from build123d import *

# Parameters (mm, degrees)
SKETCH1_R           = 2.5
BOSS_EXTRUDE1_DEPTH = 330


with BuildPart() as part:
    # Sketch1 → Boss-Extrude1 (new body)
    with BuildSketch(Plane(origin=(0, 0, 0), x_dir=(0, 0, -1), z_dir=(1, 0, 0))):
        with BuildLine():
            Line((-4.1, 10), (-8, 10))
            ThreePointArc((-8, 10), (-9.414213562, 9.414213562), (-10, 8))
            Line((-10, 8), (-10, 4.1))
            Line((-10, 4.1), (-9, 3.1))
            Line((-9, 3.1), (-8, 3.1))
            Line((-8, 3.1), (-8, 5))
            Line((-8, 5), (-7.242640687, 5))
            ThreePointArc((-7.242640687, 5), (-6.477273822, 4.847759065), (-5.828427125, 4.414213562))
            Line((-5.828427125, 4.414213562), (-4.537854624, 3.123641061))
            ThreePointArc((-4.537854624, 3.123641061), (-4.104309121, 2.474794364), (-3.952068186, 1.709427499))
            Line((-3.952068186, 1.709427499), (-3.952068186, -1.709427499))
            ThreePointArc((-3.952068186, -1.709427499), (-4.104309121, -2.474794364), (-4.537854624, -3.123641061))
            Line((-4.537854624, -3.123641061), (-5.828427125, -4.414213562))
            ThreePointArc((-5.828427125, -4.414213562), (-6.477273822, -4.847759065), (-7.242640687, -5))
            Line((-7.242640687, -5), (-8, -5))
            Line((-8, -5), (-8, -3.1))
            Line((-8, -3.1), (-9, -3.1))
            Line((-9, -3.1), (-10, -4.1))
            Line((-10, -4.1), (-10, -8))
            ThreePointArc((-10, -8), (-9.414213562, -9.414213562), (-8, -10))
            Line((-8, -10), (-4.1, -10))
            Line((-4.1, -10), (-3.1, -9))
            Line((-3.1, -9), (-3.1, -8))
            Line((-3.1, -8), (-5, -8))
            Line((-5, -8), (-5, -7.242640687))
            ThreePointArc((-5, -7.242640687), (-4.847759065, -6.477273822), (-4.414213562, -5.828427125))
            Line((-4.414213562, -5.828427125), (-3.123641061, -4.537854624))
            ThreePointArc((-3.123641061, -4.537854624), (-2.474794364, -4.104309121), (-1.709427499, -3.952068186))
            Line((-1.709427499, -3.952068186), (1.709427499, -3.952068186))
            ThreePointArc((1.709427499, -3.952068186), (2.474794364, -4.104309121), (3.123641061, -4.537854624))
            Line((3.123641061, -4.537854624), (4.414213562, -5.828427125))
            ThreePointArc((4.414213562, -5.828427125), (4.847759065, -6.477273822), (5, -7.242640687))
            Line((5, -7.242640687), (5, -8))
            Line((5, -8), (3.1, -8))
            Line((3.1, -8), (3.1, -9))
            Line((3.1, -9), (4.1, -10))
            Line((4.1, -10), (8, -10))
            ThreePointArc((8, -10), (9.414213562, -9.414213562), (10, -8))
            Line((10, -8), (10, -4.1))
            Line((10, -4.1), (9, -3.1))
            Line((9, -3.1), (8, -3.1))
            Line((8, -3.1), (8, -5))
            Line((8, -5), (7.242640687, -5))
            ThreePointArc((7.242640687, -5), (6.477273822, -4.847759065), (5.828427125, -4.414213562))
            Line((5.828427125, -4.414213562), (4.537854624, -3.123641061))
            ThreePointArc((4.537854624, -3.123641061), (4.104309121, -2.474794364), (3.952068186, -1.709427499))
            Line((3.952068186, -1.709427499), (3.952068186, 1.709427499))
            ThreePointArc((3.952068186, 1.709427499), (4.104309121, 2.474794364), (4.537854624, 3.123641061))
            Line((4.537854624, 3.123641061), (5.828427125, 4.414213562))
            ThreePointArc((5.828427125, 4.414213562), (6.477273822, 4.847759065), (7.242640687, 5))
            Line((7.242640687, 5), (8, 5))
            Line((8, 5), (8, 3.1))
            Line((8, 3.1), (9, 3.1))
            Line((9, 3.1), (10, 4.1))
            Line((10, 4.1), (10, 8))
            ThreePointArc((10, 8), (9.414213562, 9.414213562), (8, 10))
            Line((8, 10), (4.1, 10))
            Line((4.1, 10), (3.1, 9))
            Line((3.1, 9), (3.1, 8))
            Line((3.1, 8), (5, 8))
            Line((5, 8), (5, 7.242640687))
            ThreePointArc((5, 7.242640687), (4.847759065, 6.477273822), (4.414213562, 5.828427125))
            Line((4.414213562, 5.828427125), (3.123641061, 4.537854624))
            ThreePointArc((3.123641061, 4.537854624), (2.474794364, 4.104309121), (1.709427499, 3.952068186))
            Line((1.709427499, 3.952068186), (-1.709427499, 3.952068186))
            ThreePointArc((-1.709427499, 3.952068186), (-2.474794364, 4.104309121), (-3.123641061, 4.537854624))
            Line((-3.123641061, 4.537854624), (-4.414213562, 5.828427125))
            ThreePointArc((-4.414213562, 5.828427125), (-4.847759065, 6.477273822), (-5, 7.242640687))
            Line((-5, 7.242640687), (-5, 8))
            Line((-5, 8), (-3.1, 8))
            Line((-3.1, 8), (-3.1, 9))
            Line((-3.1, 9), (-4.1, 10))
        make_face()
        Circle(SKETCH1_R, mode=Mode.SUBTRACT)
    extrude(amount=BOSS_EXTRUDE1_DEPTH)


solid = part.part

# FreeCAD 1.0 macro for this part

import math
import FreeCAD as App
import Part
import Sketcher

V = App.Vector
Q = App.Units.Quantity

doc = App.newDocument("Part")
params = doc.addObject("Spreadsheet::Sheet", "Params")
for row, (alias, value) in enumerate([
    ("sketch1_diameter", "5 mm"),
    ("sketch1_radius", "2 mm"),
    ("sketch1_width", "1 mm"),
    ("sketch1_width2", "3.9 mm"),
    ("sketch1_width3", "1.9 mm"),
    ("pad1_length", "330 mm"),
], start=1):
    params.set(f"A{row}", alias)
    params.set(f"B{row}", "=" + value)
    params.setAlias(f"B{row}", alias)

body = doc.addObject("PartDesign::Body", "Body")

# Sketch on YZ plane
sketch1 = body.newObject("Sketcher::SketchObject", "Sketch")
sketch1.AttachmentSupport = (doc.getObject("YZ_Plane"), [""])
sketch1.MapMode = "FlatFace"
sketch1.addGeometry([
    Part.LineSegment(V(10, 4.1, 0), V(10, 8, 0)),  # 0
    Part.ArcOfCircle(Part.Circle(V(8, 8, 0), V(0, 0, 1), 2), math.radians(0), math.radians(90)),  # 1
    Part.LineSegment(V(8, 10, 0), V(4.1, 10, 0)),  # 2
    Part.LineSegment(V(4.1, 10, 0), V(3.1, 9, 0)),  # 3
    Part.LineSegment(V(3.1, 9, 0), V(3.1, 8, 0)),  # 4
    Part.LineSegment(V(3.1, 8, 0), V(5, 8, 0)),  # 5
    Part.LineSegment(V(5, 8, 0), V(5, 7.242641, 0)),  # 6
    Part.ArcOfCircle(Part.Circle(V(3, 7.242641, 0), V(0, 0, 1), 2), math.radians(-45), math.radians(0)),  # 7
    Part.LineSegment(V(4.414214, 5.828427, 0), V(3.123641, 4.537855, 0)),  # 8
    Part.ArcOfCircle(Part.Circle(V(1.709428, 5.952068, 0), V(0, 0, 1), 2), math.radians(-90), math.radians(-45)),  # 9
    Part.LineSegment(V(1.709427, 3.952068, 0), V(-1.709427, 3.952068, 0)),  # 10
    Part.ArcOfCircle(Part.Circle(V(-1.709428, 5.952068, 0), V(0, 0, 1), 2), math.radians(-135), math.radians(-90)),  # 11
    Part.LineSegment(V(-3.123641, 4.537855, 0), V(-4.414214, 5.828427, 0)),  # 12
    Part.ArcOfCircle(Part.Circle(V(-3, 7.242641, 0), V(0, 0, 1), 2), math.radians(180), math.radians(225)),  # 13
    Part.LineSegment(V(-5, 7.242641, 0), V(-5, 8, 0)),  # 14
    Part.LineSegment(V(-5, 8, 0), V(-3.1, 8, 0)),  # 15
    Part.LineSegment(V(-3.1, 8, 0), V(-3.1, 9, 0)),  # 16
    Part.LineSegment(V(-3.1, 9, 0), V(-4.1, 10, 0)),  # 17
    Part.LineSegment(V(-4.1, 10, 0), V(-8, 10, 0)),  # 18
    Part.ArcOfCircle(Part.Circle(V(-8, 8, 0), V(0, 0, 1), 2), math.radians(90), math.radians(180)),  # 19
    Part.LineSegment(V(-10, 8, 0), V(-10, 4.1, 0)),  # 20
    Part.LineSegment(V(-10, 4.1, 0), V(-9, 3.1, 0)),  # 21
    Part.LineSegment(V(-9, 3.1, 0), V(-8, 3.1, 0)),  # 22
    Part.LineSegment(V(-8, 3.1, 0), V(-8, 5, 0)),  # 23
    Part.LineSegment(V(-8, 5, 0), V(-7.242641, 5, 0)),  # 24
    Part.ArcOfCircle(Part.Circle(V(-7.242641, 3, 0), V(0, 0, 1), 2), math.radians(45), math.radians(90)),  # 25
    Part.LineSegment(V(-5.828427, 4.414214, 0), V(-4.537855, 3.123641, 0)),  # 26
    Part.ArcOfCircle(Part.Circle(V(-5.952068, 1.709428, 0), V(0, 0, 1), 2), math.radians(0), math.radians(45)),  # 27
    Part.LineSegment(V(-3.952068, 1.709427, 0), V(-3.952068, -1.709427, 0)),  # 28
    Part.ArcOfCircle(Part.Circle(V(-5.952068, -1.709428, 0), V(0, 0, 1), 2), math.radians(-45), math.radians(0)),  # 29
    Part.LineSegment(V(-4.537855, -3.123641, 0), V(-5.828427, -4.414214, 0)),  # 30
    Part.ArcOfCircle(Part.Circle(V(-7.242641, -3, 0), V(0, 0, 1), 2), math.radians(-90), math.radians(-45)),  # 31
    Part.LineSegment(V(-7.242641, -5, 0), V(-8, -5, 0)),  # 32
    Part.LineSegment(V(-8, -5, 0), V(-8, -3.1, 0)),  # 33
    Part.LineSegment(V(-8, -3.1, 0), V(-9, -3.1, 0)),  # 34
    Part.LineSegment(V(-9, -3.1, 0), V(-10, -4.1, 0)),  # 35
    Part.LineSegment(V(-10, -4.1, 0), V(-10, -8, 0)),  # 36
    Part.ArcOfCircle(Part.Circle(V(-8, -8, 0), V(0, 0, 1), 2), math.radians(-180), math.radians(-90)),  # 37
    Part.LineSegment(V(-8, -10, 0), V(-4.1, -10, 0)),  # 38
    Part.LineSegment(V(-4.1, -10, 0), V(-3.1, -9, 0)),  # 39
    Part.LineSegment(V(-3.1, -9, 0), V(-3.1, -8, 0)),  # 40
    Part.LineSegment(V(-3.1, -8, 0), V(-5, -8, 0)),  # 41
    Part.LineSegment(V(-5, -8, 0), V(-5, -7.242641, 0)),  # 42
    Part.ArcOfCircle(Part.Circle(V(-3, -7.242641, 0), V(0, 0, 1), 2), math.radians(135), math.radians(180)),  # 43
    Part.LineSegment(V(-4.414214, -5.828427, 0), V(-3.123641, -4.537855, 0)),  # 44
    Part.ArcOfCircle(Part.Circle(V(-1.709428, -5.952068, 0), V(0, 0, 1), 2), math.radians(90), math.radians(135)),  # 45
    Part.LineSegment(V(-1.709427, -3.952068, 0), V(1.709427, -3.952068, 0)),  # 46
    Part.ArcOfCircle(Part.Circle(V(1.709428, -5.952068, 0), V(0, 0, 1), 2), math.radians(45), math.radians(90)),  # 47
    Part.LineSegment(V(3.123641, -4.537855, 0), V(4.414214, -5.828427, 0)),  # 48
    Part.ArcOfCircle(Part.Circle(V(3, -7.242641, 0), V(0, 0, 1), 2), math.radians(0), math.radians(45)),  # 49
    Part.LineSegment(V(5, -7.242641, 0), V(5, -8, 0)),  # 50
    Part.LineSegment(V(5, -8, 0), V(3.1, -8, 0)),  # 51
    Part.LineSegment(V(3.1, -8, 0), V(3.1, -9, 0)),  # 52
    Part.LineSegment(V(3.1, -9, 0), V(4.1, -10, 0)),  # 53
    Part.LineSegment(V(4.1, -10, 0), V(8, -10, 0)),  # 54
    Part.ArcOfCircle(Part.Circle(V(8, -8, 0), V(0, 0, 1), 2), math.radians(-90), math.radians(0)),  # 55
    Part.LineSegment(V(10, -8, 0), V(10, -4.1, 0)),  # 56
    Part.LineSegment(V(10, -4.1, 0), V(9, -3.1, 0)),  # 57
    Part.LineSegment(V(9, -3.1, 0), V(8, -3.1, 0)),  # 58
    Part.LineSegment(V(8, -3.1, 0), V(8, -5, 0)),  # 59
    Part.LineSegment(V(8, -5, 0), V(7.242641, -5, 0)),  # 60
    Part.ArcOfCircle(Part.Circle(V(7.242641, -3, 0), V(0, 0, 1), 2), math.radians(-135), math.radians(-90)),  # 61
    Part.LineSegment(V(5.828427, -4.414214, 0), V(4.537855, -3.123641, 0)),  # 62
    Part.ArcOfCircle(Part.Circle(V(5.952068, -1.709428, 0), V(0, 0, 1), 2), math.radians(180), math.radians(225)),  # 63
    Part.LineSegment(V(3.952068, -1.709427, 0), V(3.952068, 1.709427, 0)),  # 64
    Part.ArcOfCircle(Part.Circle(V(5.952068, 1.709428, 0), V(0, 0, 1), 2), math.radians(135), math.radians(180)),  # 65
    Part.LineSegment(V(4.537855, 3.123641, 0), V(5.828427, 4.414214, 0)),  # 66
    Part.ArcOfCircle(Part.Circle(V(7.242641, 3, 0), V(0, 0, 1), 2), math.radians(90), math.radians(135)),  # 67
    Part.LineSegment(V(7.242641, 5, 0), V(8, 5, 0)),  # 68
    Part.LineSegment(V(8, 5, 0), V(8, 3.1, 0)),  # 69
    Part.LineSegment(V(8, 3.1, 0), V(9, 3.1, 0)),  # 70
    Part.LineSegment(V(9, 3.1, 0), V(10, 4.1, 0)),  # 71
    Part.Circle(V(0, 0, 0), V(0, 0, 1), 2.5),  # 72
], False)
sketch1.addConstraint([
    Sketcher.Constraint("Tangent", 0, 2, 1, 1),
    Sketcher.Constraint("Tangent", 1, 2, 2, 1),
    Sketcher.Constraint("Coincident", 2, 2, 3, 1),
    Sketcher.Constraint("Coincident", 3, 2, 4, 1),
    Sketcher.Constraint("Coincident", 4, 2, 5, 1),
    Sketcher.Constraint("Coincident", 5, 2, 6, 1),
    Sketcher.Constraint("Tangent", 6, 2, 7, 2),
    Sketcher.Constraint("Tangent", 7, 1, 8, 1),
    Sketcher.Constraint("Tangent", 8, 2, 9, 2),
    Sketcher.Constraint("Tangent", 9, 1, 10, 1),
    Sketcher.Constraint("Tangent", 10, 2, 11, 2),
    Sketcher.Constraint("Tangent", 11, 1, 12, 1),
    Sketcher.Constraint("Tangent", 12, 2, 13, 2),
    Sketcher.Constraint("Tangent", 13, 1, 14, 1),
    Sketcher.Constraint("Coincident", 14, 2, 15, 1),
    Sketcher.Constraint("Coincident", 15, 2, 16, 1),
    Sketcher.Constraint("Coincident", 16, 2, 17, 1),
    Sketcher.Constraint("Coincident", 17, 2, 18, 1),
    Sketcher.Constraint("Tangent", 18, 2, 19, 1),
    Sketcher.Constraint("Tangent", 19, 2, 20, 1),
    Sketcher.Constraint("Coincident", 20, 2, 21, 1),
    Sketcher.Constraint("Coincident", 21, 2, 22, 1),
    Sketcher.Constraint("Coincident", 22, 2, 23, 1),
    Sketcher.Constraint("Coincident", 23, 2, 24, 1),
    Sketcher.Constraint("Tangent", 24, 2, 25, 2),
    Sketcher.Constraint("Tangent", 25, 1, 26, 1),
    Sketcher.Constraint("Tangent", 26, 2, 27, 2),
    Sketcher.Constraint("Tangent", 27, 1, 28, 1),
    Sketcher.Constraint("Tangent", 28, 2, 29, 2),
    Sketcher.Constraint("Tangent", 29, 1, 30, 1),
    Sketcher.Constraint("Tangent", 30, 2, 31, 2),
    Sketcher.Constraint("Tangent", 31, 1, 32, 1),
    Sketcher.Constraint("Coincident", 32, 2, 33, 1),
    Sketcher.Constraint("Coincident", 33, 2, 34, 1),
    Sketcher.Constraint("Coincident", 34, 2, 35, 1),
    Sketcher.Constraint("Coincident", 35, 2, 36, 1),
    Sketcher.Constraint("Tangent", 36, 2, 37, 1),
    Sketcher.Constraint("Tangent", 37, 2, 38, 1),
    Sketcher.Constraint("Coincident", 38, 2, 39, 1),
    Sketcher.Constraint("Coincident", 39, 2, 40, 1),
    Sketcher.Constraint("Coincident", 40, 2, 41, 1),
    Sketcher.Constraint("Coincident", 41, 2, 42, 1),
    Sketcher.Constraint("Tangent", 42, 2, 43, 2),
    Sketcher.Constraint("Tangent", 43, 1, 44, 1),
    Sketcher.Constraint("Tangent", 44, 2, 45, 2),
    Sketcher.Constraint("Tangent", 45, 1, 46, 1),
    Sketcher.Constraint("Tangent", 46, 2, 47, 2),
    Sketcher.Constraint("Tangent", 47, 1, 48, 1),
    Sketcher.Constraint("Tangent", 48, 2, 49, 2),
    Sketcher.Constraint("Tangent", 49, 1, 50, 1),
    Sketcher.Constraint("Coincident", 50, 2, 51, 1),
    Sketcher.Constraint("Coincident", 51, 2, 52, 1),
    Sketcher.Constraint("Coincident", 52, 2, 53, 1),
    Sketcher.Constraint("Coincident", 53, 2, 54, 1),
    Sketcher.Constraint("Tangent", 54, 2, 55, 1),
    Sketcher.Constraint("Tangent", 55, 2, 56, 1),
    Sketcher.Constraint("Coincident", 56, 2, 57, 1),
    Sketcher.Constraint("Coincident", 57, 2, 58, 1),
    Sketcher.Constraint("Coincident", 58, 2, 59, 1),
    Sketcher.Constraint("Coincident", 59, 2, 60, 1),
    Sketcher.Constraint("Tangent", 60, 2, 61, 2),
    Sketcher.Constraint("Tangent", 61, 1, 62, 1),
    Sketcher.Constraint("Tangent", 62, 2, 63, 2),
    Sketcher.Constraint("Tangent", 63, 1, 64, 1),
    Sketcher.Constraint("Tangent", 64, 2, 65, 2),
    Sketcher.Constraint("Tangent", 65, 1, 66, 1),
    Sketcher.Constraint("Tangent", 66, 2, 67, 2),
    Sketcher.Constraint("Tangent", 67, 1, 68, 1),
    Sketcher.Constraint("Coincident", 68, 2, 69, 1),
    Sketcher.Constraint("Coincident", 69, 2, 70, 1),
    Sketcher.Constraint("Coincident", 70, 2, 71, 1),
    Sketcher.Constraint("Coincident", 71, 2, 0, 1),
    Sketcher.Constraint("Vertical", 0),
    Sketcher.Constraint("Horizontal", 2),
    Sketcher.Constraint("Vertical", 4),
    Sketcher.Constraint("Horizontal", 5),
    Sketcher.Constraint("Vertical", 6),
    Sketcher.Constraint("Horizontal", 10),
    Sketcher.Constraint("Vertical", 14),
    Sketcher.Constraint("Horizontal", 15),
    Sketcher.Constraint("Vertical", 16),
    Sketcher.Constraint("Horizontal", 18),
    Sketcher.Constraint("Vertical", 20),
    Sketcher.Constraint("Horizontal", 22),
    Sketcher.Constraint("Vertical", 23),
    Sketcher.Constraint("Horizontal", 24),
    Sketcher.Constraint("Vertical", 28),
    Sketcher.Constraint("Horizontal", 32),
    Sketcher.Constraint("Vertical", 33),
    Sketcher.Constraint("Horizontal", 34),
    Sketcher.Constraint("Vertical", 36),
    Sketcher.Constraint("Horizontal", 38),
    Sketcher.Constraint("Vertical", 40),
    Sketcher.Constraint("Horizontal", 41),
    Sketcher.Constraint("Vertical", 42),
    Sketcher.Constraint("Horizontal", 46),
    Sketcher.Constraint("Vertical", 50),
    Sketcher.Constraint("Horizontal", 51),
    Sketcher.Constraint("Vertical", 52),
    Sketcher.Constraint("Horizontal", 54),
    Sketcher.Constraint("Vertical", 56),
    Sketcher.Constraint("Horizontal", 58),
    Sketcher.Constraint("Vertical", 59),
    Sketcher.Constraint("Horizontal", 60),
    Sketcher.Constraint("Vertical", 64),
    Sketcher.Constraint("Horizontal", 68),
    Sketcher.Constraint("Vertical", 69),
    Sketcher.Constraint("Horizontal", 70),
    Sketcher.Constraint("Coincident", 72, 3, -1, 1),
    Sketcher.Constraint("Equal", 1, 7),
    Sketcher.Constraint("Equal", 7, 9),
    Sketcher.Constraint("Equal", 9, 11),
    Sketcher.Constraint("Equal", 11, 13),
    Sketcher.Constraint("Equal", 13, 19),
    Sketcher.Constraint("Equal", 19, 25),
    Sketcher.Constraint("Equal", 25, 27),
    Sketcher.Constraint("Equal", 27, 29),
    Sketcher.Constraint("Equal", 29, 31),
    Sketcher.Constraint("Equal", 31, 37),
    Sketcher.Constraint("Equal", 37, 43),
    Sketcher.Constraint("Equal", 43, 45),
    Sketcher.Constraint("Equal", 45, 47),
    Sketcher.Constraint("Equal", 47, 49),
    Sketcher.Constraint("Equal", 49, 55),
    Sketcher.Constraint("Equal", 55, 61),
    Sketcher.Constraint("Equal", 61, 63),
    Sketcher.Constraint("Equal", 63, 65),
    Sketcher.Constraint("Equal", 65, 67),
    Sketcher.Constraint("Symmetric", 1, 3, 37, 3, -1, 1),
    Sketcher.Constraint("Symmetric", 7, 3, 43, 3, -1, 1),
    Sketcher.Constraint("Symmetric", 9, 3, 45, 3, -1, 1),
    Sketcher.Constraint("Symmetric", 13, 3, 49, 3, -1, 1),
    Sketcher.Constraint("Symmetric", 19, 3, 55, 3, -1, 1),
    Sketcher.Constraint("Symmetric", 25, 3, 61, 3, -1, 1),
    Sketcher.Constraint("Symmetric", 27, 3, 63, 3, -1, 1),
    Sketcher.Constraint("Symmetric", 31, 3, 67, 3, -1, 1),
    Sketcher.Constraint("Symmetric", 3, 2, 39, 2, -1, 1),
    Sketcher.Constraint("Symmetric", 15, 2, 51, 2, -1, 1),
    Sketcher.Constraint("Symmetric", 21, 2, 57, 2, -1, 1),
    Sketcher.Constraint("Symmetric", 33, 2, 69, 2, -1, 1),
    Sketcher.Constraint("Symmetric", 7, 3, 13, 3, -2),
    Sketcher.Constraint("Symmetric", 1, 3, 19, 3, -2),
    Sketcher.Constraint("Symmetric", 31, 3, 61, 3, -2),
    Sketcher.Constraint("Symmetric", 4, 2, 15, 2, -2),
    Sketcher.Constraint("Symmetric", 34, 2, 57, 2, -2),
    Sketcher.Constraint("Parallel", 3, 8),
    Sketcher.Constraint("Perpendicular", 8, 12),
    Sketcher.Constraint("Parallel", 12, 17),
    Sketcher.Constraint("Parallel", 17, 21),
    Sketcher.Constraint("Parallel", 21, 26),
    Sketcher.Constraint("Perpendicular", 26, 30),
    Sketcher.Constraint("Parallel", 30, 35),
    Sketcher.Constraint("Parallel", 35, 39),
    Sketcher.Constraint("Perpendicular", 44, 48),
    Sketcher.Constraint("Parallel", 48, 53),
    Sketcher.Constraint("Parallel", 53, 57),
    Sketcher.Constraint("Perpendicular", 62, 66),
    Sketcher.Constraint("Parallel", 66, 71),
    Sketcher.Constraint("Horizontal", 29, 3, 63, 3),
    Sketcher.Constraint("Horizontal", 0, 2, 4, 2),
    Sketcher.Constraint("Horizontal", 3, 2, 16, 2),
    Sketcher.Constraint("Horizontal", 36, 2, 40, 2),
    Sketcher.Constraint("Horizontal", 39, 2, 52, 2),
    Sketcher.Constraint("Horizontal", 20, 2, 71, 2),
    Sketcher.Constraint("Vertical", 18, 2, 22, 2),
    Sketcher.Constraint("Vertical", 23, 2, 32, 2),
    Sketcher.Constraint("Vertical", 54, 2, 58, 2),
    Sketcher.Constraint("Equal", 54, 0),
    Sketcher.Constraint("Equal", 70, 4),
    Sketcher.Constraint("Equal", 68, 6),
    Sketcher.Constraint("Equal", 51, 23),
    Sketcher.Constraint("Equal", 46, 28),
    Sketcher.Constraint("Equal", 12, 26),
    Sketcher.Constraint("Diameter", 72, Q("5 mm")),
    Sketcher.Constraint("Radius", 1, Q("2 mm")),
    Sketcher.Constraint("DistanceX", 22, 1, 22, 2, Q("1 mm")),
    Sketcher.Constraint("DistanceX", 2, 2, 2, 1, Q("3.9 mm")),
    Sketcher.Constraint("DistanceX", 5, 1, 5, 2, Q("1.9 mm")),
    Sketcher.Constraint("DistanceX", -1, 1, 1, 3, Q("8 mm")),
    Sketcher.Constraint("DistanceX", 24, 1, 24, 2, Q("0.757359 mm")),
    Sketcher.Constraint("DistanceX", 10, 2, 10, 1, Q("3.418855 mm")),
])
sketch1.setExpression("Constraints[173]", "Params.sketch1_diameter")
sketch1.setExpression("Constraints[174]", "Params.sketch1_radius")
sketch1.setExpression("Constraints[175]", "Params.sketch1_width")
sketch1.setExpression("Constraints[176]", "Params.sketch1_width2")
sketch1.setExpression("Constraints[177]", "Params.sketch1_width3")
pad1 = body.newObject("PartDesign::Pad", "Pad")
pad1.Profile = sketch1
pad1.setExpression("Length", "Params.pad1_length")

doc.recompute()
